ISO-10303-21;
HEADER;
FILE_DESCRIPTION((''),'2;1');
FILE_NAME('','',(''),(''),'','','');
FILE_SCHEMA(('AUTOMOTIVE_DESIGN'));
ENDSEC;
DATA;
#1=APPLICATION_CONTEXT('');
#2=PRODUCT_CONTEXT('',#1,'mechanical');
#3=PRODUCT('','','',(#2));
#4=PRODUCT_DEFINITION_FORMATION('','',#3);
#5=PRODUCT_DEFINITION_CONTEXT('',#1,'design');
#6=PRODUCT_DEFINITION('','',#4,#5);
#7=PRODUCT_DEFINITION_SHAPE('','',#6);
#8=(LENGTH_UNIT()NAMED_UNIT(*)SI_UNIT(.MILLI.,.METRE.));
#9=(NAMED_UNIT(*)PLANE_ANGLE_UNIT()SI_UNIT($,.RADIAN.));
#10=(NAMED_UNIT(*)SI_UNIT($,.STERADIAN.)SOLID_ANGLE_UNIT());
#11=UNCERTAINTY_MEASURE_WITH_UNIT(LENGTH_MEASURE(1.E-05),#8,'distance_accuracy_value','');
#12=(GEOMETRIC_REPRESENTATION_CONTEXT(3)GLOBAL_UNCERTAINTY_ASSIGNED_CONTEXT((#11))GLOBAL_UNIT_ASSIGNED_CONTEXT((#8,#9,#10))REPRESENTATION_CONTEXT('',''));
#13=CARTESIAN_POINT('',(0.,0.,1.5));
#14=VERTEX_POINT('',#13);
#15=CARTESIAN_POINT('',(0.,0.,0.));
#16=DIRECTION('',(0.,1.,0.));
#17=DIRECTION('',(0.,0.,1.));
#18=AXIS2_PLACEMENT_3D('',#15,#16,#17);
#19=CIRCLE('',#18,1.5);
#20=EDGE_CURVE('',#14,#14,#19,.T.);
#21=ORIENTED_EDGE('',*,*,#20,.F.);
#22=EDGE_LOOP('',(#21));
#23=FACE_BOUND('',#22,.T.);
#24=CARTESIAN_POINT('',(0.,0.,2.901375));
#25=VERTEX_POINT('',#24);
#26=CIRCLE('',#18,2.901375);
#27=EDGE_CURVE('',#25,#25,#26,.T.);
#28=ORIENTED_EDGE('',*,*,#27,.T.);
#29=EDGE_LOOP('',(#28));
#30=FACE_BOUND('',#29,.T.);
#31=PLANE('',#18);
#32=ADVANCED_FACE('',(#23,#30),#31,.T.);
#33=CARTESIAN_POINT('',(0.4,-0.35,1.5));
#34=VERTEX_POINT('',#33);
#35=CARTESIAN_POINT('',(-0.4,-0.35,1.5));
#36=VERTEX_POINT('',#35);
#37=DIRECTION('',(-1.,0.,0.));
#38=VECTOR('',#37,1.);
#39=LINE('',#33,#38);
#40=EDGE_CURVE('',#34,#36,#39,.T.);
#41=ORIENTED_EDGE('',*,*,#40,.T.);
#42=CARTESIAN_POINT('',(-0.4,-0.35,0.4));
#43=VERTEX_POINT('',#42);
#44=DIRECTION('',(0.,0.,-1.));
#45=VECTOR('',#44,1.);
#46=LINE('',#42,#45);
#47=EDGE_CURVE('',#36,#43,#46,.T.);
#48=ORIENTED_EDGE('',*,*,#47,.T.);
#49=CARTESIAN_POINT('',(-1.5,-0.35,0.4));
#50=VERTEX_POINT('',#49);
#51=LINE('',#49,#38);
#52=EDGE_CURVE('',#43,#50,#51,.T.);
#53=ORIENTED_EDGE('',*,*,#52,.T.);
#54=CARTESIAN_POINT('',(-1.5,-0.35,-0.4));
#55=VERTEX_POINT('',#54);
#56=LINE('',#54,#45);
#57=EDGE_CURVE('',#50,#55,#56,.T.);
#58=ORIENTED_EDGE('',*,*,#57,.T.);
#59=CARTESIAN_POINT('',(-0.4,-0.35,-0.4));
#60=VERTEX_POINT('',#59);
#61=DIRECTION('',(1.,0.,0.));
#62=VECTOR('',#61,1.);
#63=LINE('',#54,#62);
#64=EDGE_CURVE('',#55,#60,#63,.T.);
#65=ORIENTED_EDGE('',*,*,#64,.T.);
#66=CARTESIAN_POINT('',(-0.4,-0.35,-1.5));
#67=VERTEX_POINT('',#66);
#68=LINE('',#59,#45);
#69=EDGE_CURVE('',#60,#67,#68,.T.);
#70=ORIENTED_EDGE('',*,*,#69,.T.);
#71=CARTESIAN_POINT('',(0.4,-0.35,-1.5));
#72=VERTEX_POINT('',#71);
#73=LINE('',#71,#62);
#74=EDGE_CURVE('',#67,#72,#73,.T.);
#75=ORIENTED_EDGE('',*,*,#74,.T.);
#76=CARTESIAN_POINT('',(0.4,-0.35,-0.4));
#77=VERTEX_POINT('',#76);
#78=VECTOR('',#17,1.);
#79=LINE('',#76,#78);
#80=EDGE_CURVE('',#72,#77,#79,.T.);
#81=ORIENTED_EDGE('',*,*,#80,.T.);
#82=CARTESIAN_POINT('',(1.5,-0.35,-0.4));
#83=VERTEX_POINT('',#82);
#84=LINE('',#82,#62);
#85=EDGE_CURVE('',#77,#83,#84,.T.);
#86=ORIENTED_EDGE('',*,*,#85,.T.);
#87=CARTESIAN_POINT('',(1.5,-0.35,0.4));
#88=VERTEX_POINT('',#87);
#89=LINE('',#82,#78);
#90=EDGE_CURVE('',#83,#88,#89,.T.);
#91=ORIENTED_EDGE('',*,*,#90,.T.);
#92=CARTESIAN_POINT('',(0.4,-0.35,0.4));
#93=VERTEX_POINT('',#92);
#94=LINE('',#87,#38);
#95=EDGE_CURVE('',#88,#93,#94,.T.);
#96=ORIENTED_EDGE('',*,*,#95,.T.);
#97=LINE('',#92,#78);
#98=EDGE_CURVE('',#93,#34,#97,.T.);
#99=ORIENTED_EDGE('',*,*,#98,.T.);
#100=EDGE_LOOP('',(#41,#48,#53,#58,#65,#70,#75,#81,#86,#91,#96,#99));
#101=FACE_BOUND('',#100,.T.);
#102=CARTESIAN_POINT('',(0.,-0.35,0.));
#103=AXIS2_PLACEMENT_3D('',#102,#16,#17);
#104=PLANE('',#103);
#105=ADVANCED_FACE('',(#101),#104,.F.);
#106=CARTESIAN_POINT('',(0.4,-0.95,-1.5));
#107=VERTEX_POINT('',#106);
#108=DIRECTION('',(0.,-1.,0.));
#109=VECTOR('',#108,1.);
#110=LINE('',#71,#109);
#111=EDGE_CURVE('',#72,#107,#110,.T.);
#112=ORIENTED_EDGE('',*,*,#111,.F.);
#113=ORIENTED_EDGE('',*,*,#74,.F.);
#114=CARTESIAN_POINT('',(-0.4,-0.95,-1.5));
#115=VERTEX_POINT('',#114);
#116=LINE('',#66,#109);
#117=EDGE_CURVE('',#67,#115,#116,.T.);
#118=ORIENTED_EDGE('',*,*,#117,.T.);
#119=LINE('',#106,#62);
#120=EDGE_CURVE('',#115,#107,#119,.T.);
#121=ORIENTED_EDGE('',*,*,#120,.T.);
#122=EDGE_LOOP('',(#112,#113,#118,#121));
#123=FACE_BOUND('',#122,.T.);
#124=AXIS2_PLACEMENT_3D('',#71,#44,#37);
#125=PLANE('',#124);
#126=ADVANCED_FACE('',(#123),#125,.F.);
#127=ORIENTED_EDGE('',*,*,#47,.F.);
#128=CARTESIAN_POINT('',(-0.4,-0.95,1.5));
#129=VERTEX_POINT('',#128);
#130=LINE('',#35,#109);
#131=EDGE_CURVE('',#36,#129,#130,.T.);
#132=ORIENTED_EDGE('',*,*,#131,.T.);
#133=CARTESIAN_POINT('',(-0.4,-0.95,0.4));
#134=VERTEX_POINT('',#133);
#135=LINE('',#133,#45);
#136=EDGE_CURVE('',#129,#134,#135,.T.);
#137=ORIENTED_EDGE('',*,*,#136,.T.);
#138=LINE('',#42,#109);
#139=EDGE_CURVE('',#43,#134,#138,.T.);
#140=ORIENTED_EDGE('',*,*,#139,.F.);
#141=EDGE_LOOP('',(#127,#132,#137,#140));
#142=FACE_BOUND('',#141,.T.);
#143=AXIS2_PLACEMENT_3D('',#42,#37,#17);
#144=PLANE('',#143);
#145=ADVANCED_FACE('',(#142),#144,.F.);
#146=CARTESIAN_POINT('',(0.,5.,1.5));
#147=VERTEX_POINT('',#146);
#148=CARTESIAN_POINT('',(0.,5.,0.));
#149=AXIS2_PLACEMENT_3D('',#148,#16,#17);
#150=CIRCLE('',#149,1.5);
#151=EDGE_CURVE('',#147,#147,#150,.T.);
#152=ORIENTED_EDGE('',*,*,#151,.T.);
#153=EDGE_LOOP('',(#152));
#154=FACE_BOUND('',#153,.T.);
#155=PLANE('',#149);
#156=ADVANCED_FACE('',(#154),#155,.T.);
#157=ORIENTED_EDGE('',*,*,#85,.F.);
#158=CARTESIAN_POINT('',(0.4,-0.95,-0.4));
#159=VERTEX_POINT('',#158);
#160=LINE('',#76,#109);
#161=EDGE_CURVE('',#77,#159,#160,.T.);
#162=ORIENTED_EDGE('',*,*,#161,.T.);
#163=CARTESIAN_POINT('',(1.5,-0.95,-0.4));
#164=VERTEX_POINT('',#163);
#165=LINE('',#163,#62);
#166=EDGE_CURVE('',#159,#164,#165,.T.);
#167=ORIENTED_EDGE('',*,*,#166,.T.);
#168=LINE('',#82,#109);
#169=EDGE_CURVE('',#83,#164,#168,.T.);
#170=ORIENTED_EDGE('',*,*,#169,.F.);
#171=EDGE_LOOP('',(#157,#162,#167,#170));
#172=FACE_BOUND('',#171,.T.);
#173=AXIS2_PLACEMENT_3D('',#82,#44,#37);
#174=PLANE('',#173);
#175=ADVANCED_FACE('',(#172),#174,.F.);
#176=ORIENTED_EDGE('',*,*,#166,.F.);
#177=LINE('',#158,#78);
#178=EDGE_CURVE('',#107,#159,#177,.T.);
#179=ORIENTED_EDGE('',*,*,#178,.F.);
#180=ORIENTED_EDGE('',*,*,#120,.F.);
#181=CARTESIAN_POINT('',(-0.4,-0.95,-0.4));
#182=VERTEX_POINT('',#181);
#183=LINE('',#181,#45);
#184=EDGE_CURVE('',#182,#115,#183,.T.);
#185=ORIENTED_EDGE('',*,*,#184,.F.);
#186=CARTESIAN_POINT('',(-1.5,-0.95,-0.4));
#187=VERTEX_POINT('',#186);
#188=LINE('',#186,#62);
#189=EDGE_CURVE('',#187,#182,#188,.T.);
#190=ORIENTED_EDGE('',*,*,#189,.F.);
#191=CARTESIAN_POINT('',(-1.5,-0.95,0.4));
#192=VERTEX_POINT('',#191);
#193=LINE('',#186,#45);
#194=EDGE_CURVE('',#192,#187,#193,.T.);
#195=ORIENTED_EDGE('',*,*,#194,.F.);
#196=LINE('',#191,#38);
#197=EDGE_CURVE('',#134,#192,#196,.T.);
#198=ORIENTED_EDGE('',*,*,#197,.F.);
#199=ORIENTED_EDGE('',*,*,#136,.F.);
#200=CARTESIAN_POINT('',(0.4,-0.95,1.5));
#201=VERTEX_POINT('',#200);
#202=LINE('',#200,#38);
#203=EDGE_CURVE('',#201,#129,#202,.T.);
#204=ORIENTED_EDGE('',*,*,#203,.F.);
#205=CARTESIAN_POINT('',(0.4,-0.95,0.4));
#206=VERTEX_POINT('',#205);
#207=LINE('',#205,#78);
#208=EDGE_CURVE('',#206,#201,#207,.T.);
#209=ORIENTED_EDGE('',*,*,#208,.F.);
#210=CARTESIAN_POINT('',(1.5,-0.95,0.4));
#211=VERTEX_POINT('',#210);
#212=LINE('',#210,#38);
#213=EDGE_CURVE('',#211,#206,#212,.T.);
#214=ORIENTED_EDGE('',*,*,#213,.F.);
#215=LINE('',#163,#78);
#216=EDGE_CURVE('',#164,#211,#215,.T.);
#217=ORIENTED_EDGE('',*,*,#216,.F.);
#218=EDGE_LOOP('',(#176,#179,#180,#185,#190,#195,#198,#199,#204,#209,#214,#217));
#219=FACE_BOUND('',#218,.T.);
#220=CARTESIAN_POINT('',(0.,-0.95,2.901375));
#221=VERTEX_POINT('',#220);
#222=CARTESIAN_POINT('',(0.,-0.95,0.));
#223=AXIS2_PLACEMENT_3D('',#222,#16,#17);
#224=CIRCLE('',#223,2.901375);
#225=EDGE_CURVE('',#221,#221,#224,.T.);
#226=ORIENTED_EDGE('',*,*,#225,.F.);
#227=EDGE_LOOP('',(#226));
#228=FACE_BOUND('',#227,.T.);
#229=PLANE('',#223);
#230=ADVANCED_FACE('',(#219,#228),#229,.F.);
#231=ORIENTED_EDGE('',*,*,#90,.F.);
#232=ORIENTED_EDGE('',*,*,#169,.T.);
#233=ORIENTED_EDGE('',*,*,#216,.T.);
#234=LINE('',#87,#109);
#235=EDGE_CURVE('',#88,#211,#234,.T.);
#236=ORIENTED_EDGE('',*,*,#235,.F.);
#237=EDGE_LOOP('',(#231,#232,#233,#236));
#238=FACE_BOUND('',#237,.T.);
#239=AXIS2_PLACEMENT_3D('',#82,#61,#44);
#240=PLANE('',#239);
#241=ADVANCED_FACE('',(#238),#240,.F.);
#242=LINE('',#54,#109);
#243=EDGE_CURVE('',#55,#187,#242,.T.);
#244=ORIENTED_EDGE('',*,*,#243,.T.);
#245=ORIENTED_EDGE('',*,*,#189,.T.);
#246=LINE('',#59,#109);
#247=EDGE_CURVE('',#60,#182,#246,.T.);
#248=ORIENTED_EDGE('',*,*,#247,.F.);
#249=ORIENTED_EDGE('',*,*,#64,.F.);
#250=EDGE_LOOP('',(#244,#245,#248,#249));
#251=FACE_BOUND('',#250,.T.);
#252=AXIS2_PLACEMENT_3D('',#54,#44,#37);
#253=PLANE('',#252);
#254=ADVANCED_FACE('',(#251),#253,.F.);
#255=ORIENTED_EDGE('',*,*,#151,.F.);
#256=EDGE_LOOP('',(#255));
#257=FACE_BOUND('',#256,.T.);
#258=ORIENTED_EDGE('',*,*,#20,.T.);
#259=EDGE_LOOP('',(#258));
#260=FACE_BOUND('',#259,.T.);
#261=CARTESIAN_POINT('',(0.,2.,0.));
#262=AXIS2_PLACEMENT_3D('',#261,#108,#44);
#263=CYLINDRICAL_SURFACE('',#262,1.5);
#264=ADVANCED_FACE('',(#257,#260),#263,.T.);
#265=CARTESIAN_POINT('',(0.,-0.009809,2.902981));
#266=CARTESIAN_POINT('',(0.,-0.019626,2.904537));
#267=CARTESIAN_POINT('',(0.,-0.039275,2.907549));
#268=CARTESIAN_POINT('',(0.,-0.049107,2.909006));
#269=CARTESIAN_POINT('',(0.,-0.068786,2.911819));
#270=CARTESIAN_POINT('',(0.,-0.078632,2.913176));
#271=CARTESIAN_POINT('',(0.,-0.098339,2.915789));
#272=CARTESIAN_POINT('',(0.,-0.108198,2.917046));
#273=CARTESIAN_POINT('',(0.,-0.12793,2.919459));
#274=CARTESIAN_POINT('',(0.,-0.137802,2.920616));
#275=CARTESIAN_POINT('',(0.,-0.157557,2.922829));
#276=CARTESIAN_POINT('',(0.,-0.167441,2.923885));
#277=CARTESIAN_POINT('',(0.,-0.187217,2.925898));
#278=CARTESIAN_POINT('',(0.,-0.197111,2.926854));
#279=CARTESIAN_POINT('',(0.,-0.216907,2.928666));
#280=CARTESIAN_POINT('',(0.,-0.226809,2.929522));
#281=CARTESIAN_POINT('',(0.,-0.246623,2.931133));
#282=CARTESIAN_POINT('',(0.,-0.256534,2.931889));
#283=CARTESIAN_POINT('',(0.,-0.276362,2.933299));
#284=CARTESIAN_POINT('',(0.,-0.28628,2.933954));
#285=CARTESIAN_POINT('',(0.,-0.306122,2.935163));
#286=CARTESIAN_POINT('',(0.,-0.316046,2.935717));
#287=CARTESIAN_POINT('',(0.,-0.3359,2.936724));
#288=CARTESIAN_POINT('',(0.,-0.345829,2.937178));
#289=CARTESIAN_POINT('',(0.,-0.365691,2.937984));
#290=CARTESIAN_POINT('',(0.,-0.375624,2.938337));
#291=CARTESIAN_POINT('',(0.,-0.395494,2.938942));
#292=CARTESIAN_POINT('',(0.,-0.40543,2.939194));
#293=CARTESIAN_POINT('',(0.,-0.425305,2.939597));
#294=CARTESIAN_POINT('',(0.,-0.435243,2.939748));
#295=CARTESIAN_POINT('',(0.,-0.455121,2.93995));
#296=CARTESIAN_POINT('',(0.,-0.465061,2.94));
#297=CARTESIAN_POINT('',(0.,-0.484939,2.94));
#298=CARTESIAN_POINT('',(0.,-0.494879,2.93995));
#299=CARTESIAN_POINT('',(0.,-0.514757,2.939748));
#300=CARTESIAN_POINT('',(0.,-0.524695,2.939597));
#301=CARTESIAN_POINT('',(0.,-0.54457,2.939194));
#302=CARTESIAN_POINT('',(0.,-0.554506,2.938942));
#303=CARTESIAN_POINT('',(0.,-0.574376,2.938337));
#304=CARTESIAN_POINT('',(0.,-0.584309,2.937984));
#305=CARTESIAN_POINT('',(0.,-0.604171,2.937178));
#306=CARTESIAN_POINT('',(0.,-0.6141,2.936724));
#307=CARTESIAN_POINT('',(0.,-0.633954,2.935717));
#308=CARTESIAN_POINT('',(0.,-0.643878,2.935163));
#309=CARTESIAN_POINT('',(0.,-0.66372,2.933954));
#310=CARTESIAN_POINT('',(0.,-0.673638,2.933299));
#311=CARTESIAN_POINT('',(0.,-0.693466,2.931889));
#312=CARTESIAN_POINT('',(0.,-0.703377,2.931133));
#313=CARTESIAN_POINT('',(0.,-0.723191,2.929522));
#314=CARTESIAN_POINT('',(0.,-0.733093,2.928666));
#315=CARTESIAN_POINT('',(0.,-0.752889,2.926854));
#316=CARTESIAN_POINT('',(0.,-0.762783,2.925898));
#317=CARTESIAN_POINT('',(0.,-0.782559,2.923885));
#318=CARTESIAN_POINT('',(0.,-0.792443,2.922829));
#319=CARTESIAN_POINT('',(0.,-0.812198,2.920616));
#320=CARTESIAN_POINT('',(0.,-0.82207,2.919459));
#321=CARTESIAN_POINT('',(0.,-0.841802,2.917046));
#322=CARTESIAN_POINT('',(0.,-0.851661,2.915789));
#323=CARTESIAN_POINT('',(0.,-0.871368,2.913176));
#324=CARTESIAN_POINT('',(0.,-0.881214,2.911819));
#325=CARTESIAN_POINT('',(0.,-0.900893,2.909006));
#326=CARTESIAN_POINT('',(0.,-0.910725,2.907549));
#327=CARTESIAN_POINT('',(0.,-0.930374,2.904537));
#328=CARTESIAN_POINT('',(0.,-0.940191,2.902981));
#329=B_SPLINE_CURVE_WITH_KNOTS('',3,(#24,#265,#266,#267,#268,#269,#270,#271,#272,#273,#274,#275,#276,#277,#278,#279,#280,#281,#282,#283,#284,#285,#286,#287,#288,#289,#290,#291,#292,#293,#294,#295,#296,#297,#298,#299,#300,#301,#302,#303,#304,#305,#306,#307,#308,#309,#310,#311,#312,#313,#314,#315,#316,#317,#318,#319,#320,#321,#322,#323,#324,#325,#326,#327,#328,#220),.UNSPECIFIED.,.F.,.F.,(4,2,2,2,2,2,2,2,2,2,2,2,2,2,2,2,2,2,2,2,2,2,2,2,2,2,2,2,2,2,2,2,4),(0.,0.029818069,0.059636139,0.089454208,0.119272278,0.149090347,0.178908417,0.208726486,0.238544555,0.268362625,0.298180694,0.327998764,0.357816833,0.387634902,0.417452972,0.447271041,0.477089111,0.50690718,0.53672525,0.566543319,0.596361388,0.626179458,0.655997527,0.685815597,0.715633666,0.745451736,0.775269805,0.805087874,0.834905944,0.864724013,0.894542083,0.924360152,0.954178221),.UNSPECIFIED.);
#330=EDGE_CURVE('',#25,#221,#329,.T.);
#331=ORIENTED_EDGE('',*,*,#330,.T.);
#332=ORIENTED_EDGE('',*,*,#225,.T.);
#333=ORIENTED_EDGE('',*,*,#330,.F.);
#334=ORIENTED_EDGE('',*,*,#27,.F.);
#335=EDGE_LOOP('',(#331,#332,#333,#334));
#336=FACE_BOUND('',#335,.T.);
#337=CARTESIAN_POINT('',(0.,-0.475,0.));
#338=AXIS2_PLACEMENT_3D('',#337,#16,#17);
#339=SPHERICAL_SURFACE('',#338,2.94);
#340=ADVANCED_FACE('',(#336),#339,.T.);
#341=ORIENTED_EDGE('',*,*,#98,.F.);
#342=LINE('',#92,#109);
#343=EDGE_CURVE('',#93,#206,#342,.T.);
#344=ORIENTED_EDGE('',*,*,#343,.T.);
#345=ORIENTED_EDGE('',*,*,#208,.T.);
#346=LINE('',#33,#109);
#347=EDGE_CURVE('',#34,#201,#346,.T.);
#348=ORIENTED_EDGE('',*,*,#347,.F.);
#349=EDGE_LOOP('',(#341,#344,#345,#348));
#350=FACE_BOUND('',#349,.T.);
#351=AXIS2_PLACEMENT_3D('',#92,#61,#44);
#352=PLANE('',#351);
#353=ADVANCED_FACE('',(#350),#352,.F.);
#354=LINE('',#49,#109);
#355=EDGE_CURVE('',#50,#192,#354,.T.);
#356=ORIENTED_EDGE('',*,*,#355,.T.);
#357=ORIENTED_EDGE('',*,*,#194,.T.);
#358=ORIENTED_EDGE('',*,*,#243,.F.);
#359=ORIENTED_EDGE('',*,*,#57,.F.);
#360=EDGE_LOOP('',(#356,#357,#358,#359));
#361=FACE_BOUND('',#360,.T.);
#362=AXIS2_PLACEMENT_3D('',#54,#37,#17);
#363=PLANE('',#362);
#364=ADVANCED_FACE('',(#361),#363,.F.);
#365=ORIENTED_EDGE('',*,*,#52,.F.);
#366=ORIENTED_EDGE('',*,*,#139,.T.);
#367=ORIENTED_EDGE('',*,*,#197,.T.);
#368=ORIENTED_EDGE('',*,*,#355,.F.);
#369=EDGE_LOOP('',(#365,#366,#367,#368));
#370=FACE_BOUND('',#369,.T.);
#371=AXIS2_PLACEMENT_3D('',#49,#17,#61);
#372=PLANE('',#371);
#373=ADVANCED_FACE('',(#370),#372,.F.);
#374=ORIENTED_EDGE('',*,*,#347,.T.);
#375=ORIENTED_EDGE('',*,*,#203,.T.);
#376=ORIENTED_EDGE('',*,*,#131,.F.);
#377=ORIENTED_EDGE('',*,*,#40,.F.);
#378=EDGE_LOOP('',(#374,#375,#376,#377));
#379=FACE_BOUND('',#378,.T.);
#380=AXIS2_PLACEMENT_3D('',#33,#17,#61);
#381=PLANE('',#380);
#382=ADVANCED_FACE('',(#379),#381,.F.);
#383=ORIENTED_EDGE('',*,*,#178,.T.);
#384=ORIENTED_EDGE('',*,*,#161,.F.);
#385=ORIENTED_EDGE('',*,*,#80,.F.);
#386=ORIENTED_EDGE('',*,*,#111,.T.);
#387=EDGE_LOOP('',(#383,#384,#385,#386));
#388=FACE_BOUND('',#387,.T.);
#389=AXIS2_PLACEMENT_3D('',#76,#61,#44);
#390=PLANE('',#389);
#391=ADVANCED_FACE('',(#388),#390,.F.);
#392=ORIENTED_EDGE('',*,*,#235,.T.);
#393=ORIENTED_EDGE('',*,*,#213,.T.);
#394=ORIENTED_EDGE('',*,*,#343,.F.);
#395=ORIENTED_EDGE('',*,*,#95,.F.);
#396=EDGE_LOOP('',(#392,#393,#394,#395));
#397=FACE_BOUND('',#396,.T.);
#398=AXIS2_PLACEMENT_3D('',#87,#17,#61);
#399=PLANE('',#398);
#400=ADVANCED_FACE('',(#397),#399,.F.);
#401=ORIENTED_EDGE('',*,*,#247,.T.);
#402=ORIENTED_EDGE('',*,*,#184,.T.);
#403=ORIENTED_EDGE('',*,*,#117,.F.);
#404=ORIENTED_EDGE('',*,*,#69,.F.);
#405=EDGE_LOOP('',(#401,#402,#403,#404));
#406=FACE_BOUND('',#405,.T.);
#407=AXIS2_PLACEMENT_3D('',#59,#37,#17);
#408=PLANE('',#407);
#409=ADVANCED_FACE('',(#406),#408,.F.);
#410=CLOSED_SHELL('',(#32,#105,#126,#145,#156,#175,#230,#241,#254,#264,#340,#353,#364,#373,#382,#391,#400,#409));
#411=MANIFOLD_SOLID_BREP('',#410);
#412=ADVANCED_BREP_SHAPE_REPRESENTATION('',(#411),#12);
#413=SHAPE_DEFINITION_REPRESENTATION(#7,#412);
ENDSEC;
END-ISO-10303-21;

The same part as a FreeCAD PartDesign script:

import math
import FreeCAD as App
import Part
import Sketcher

V = App.Vector
Q = App.Units.Quantity

doc = App.newDocument("Part")
body = doc.addObject("PartDesign::Body", "Body")

# Sketch on XZ plane
sketch1 = doc.addObject("Sketcher::SketchObject", "Sketch")
body.addObject(sketch1)
sketch1.AttachmentSupport = (doc.XZ_Plane, [""])
sketch1.MapMode = "FlatFace"
sketch1.addGeometry(Part.Circle(V(0, 0, 0), V(0, 0, 1), 1.5), False)
sketch1.addConstraint([
    Sketcher.Constraint("Coincident", 0, 3, -1, 1),
    Sketcher.Constraint("Diameter", 0, Q("3 mm")),
])
pad1 = doc.addObject("PartDesign::Pad", "Pad")
body.addObject(pad1)
pad1.Profile = sketch1
pad1.Length = 2
pad1.Reversed = True

# Sketch on XZ plane
sketch2 = doc.addObject("Sketcher::SketchObject", "Sketch001")
body.addObject(sketch2)
sketch2.AttachmentSupport = (doc.XZ_Plane, [""])
sketch2.MapMode = "FlatFace"
sketch2.addGeometry(Part.Circle(V(0, 0, 0), V(0, 0, 1), 3), False)
sketch2.addConstraint([
    Sketcher.Constraint("Coincident", 0, 3, -1, 1),
    Sketcher.Constraint("Diameter", 0, Q("5.9 mm")),
])
pad2 = doc.addObject("PartDesign::Pad", "Pad001")
body.addObject(pad2)
pad2.Profile = sketch2
pad2.Length = 0.95

# Sketch on YZ plane
sketch3 = doc.addObject("Sketcher::SketchObject", "Sketch002")
body.addObject(sketch3)
sketch3.AttachmentSupport = (doc.YZ_Plane, [""])
sketch3.MapMode = "FlatFace"
sketch3.addGeometry([
    Part.LineSegment(V(0, 2.901, 0), V(0, 2.95, 0)),
    Part.LineSegment(V(0, 2.95, 0), V(-0.95, 2.95, 0)),
    Part.LineSegment(V(-0.95, 2.95, 0), V(-0.95, 2.901, 0)),
    Part.ArcOfCircle(Part.Circle(V(-0.475, 0, 0), V(0, 0, 1), 2.94), math.radians(80.7), math.radians(99.3)),
], False)
sketch3.addConstraint([
    Sketcher.Constraint("Coincident", 0, 2, 1, 1),
    Sketcher.Constraint("Coincident", 1, 2, 2, 1),
    Sketcher.Constraint("Coincident", 2, 2, 3, 2),
    Sketcher.Constraint("Coincident", 3, 1, 0, 1),
    Sketcher.Constraint("Vertical", 0),
    Sketcher.Constraint("Horizontal", 1),
    Sketcher.Constraint("Vertical", 2),
    Sketcher.Constraint("PointOnObject", 3, 3, -1),
    Sketcher.Constraint("PointOnObject", 0, 2, -2),
    Sketcher.Constraint("Horizontal", 2, 2, 3, 1),
    Sketcher.Constraint("Radius", 3, Q("2.94 mm")),
    Sketcher.Constraint("DistanceX", 1, 2, 1, 1, Q("0.95 mm")),
    Sketcher.Constraint("DistanceY", -1, 1, 0, 2, Q("2.95 mm")),
])
groove = doc.addObject("PartDesign::Groove", "Groove")
body.addObject(groove)
groove.Profile = sketch3
groove.ReferenceAxis = (sketch3, ["H_Axis"])
groove.Angle = 360

# Sketch on XZ plane
sketch4 = doc.addObject("Sketcher::SketchObject", "Sketch003")
body.addObject(sketch4)
sketch4.AttachmentSupport = (doc.XZ_Plane, [""])
sketch4.MapMode = "FlatFace"
sketch4.AttachmentOffset = App.Placement(V(0, 0, 0.95), App.Rotation())
sketch4.addGeometry([
    Part.LineSegment(V(1.5, -0.4, 0), V(1.5, 0.4, 0)),  # 0
    Part.LineSegment(V(1.5, 0.4, 0), V(0.4, 0.4, 0)),  # 1
    Part.LineSegment(V(0.4, 0.4, 0), V(0.4, 1.5, 0)),  # 2
    Part.LineSegment(V(0.4, 1.5, 0), V(-0.4, 1.5, 0)),  # 3
    Part.LineSegment(V(-0.4, 1.5, 0), V(-0.4, 0.4, 0)),  # 4
    Part.LineSegment(V(-0.4, 0.4, 0), V(-1.5, 0.4, 0)),  # 5
    Part.LineSegment(V(-1.5, 0.4, 0), V(-1.5, -0.4, 0)),  # 6
    Part.LineSegment(V(-1.5, -0.4, 0), V(-0.4, -0.4, 0)),  # 7
    Part.LineSegment(V(-0.4, -0.4, 0), V(-0.4, -1.5, 0)),  # 8
    Part.LineSegment(V(-0.4, -1.5, 0), V(0.4, -1.5, 0)),  # 9
    Part.LineSegment(V(0.4, -1.5, 0), V(0.4, -0.4, 0)),  # 10
    Part.LineSegment(V(0.4, -0.4, 0), V(1.5, -0.4, 0)),  # 11
], False)
sketch4.addConstraint([
    Sketcher.Constraint("Coincident", 0, 2, 1, 1),
    Sketcher.Constraint("Coincident", 1, 2, 2, 1),
    Sketcher.Constraint("Coincident", 2, 2, 3, 1),
    Sketcher.Constraint("Coincident", 3, 2, 4, 1),
    Sketcher.Constraint("Coincident", 4, 2, 5, 1),
    Sketcher.Constraint("Coincident", 5, 2, 6, 1),
    Sketcher.Constraint("Coincident", 6, 2, 7, 1),
    Sketcher.Constraint("Coincident", 7, 2, 8, 1),
    Sketcher.Constraint("Coincident", 8, 2, 9, 1),
    Sketcher.Constraint("Coincident", 9, 2, 10, 1),
    Sketcher.Constraint("Coincident", 10, 2, 11, 1),
    Sketcher.Constraint("Coincident", 11, 2, 0, 1),
    Sketcher.Constraint("Vertical", 0),
    Sketcher.Constraint("Horizontal", 1),
    Sketcher.Constraint("Vertical", 2),
    Sketcher.Constraint("Horizontal", 3),
    Sketcher.Constraint("Vertical", 4),
    Sketcher.Constraint("Horizontal", 5),
    Sketcher.Constraint("Vertical", 6),
    Sketcher.Constraint("Horizontal", 7),
    Sketcher.Constraint("Vertical", 8),
    Sketcher.Constraint("Horizontal", 9),
    Sketcher.Constraint("Vertical", 10),
    Sketcher.Constraint("Horizontal", 11),
    Sketcher.Constraint("Symmetric", 0, 2, 6, 2, -1, 1),
    Sketcher.Constraint("Symmetric", 2, 2, 8, 2, -1, 1),
    Sketcher.Constraint("Symmetric", 4, 2, 10, 2, -1, 1),
    Sketcher.Constraint("Symmetric", 1, 2, 4, 2, -2),
    Sketcher.Constraint("Equal", 9, 0),
    Sketcher.Constraint("Equal", 11, 2),
    Sketcher.Constraint("DistanceX", 1, 2, 1, 1, Q("1.1 mm")),
    Sketcher.Constraint("DistanceX", 3, 2, 3, 1, Q("0.8 mm")),
])
pocket1 = doc.addObject("PartDesign::Pocket", "Pocket")
body.addObject(pocket1)
pocket1.Profile = sketch4
pocket1.Length = 0.6

# Sketch on XZ plane
sketch5 = doc.addObject("Sketcher::SketchObject", "Sketch004")
body.addObject(sketch5)
sketch5.AttachmentSupport = (doc.XZ_Plane, [""])
sketch5.MapMode = "FlatFace"
sketch5.addGeometry(Part.Circle(V(0, 0, 0), V(0, 0, 1), 1.5), False)
sketch5.addConstraint([
    Sketcher.Constraint("Coincident", 0, 3, -1, 1),
    Sketcher.Constraint("Diameter", 0, Q("3 mm")),
])
pad3 = doc.addObject("PartDesign::Pad", "Pad002")
body.addObject(pad3)
pad3.Profile = sketch5
pad3.Length = 5
pad3.Reversed = True

doc.recompute()
